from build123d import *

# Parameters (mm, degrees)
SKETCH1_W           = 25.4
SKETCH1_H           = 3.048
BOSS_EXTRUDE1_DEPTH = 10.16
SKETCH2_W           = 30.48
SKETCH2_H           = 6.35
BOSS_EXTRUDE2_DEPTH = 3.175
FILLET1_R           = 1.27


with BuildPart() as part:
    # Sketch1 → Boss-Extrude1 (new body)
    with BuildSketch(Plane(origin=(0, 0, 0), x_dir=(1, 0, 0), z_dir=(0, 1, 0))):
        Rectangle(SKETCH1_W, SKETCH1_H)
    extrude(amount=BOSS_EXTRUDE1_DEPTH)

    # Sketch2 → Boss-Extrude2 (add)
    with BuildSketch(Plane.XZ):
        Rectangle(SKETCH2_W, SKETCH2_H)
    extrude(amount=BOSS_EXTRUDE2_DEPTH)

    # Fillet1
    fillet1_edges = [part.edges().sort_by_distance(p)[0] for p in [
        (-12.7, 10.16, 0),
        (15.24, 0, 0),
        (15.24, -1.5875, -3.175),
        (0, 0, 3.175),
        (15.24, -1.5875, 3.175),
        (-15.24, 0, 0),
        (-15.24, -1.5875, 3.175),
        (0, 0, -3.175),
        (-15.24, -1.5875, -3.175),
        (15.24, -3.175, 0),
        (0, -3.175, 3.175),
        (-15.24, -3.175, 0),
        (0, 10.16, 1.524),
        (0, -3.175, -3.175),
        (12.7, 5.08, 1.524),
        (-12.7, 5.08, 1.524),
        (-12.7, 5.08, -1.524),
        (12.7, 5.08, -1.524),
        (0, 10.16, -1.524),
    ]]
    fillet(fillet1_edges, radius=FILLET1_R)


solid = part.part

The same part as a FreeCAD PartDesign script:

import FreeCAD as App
import Part
import Sketcher
Q = App.Units.Quantity


def edges_at(feature, points):
    """Names of the edges that pass closest to the given points."""
    edges = feature.Shape.Edges
    near = lambda p: min(range(len(edges)), key=lambda i: edges[i].distToShape(Part.Vertex(*p))[0])
    return sorted({f"Edge{near(p) + 1}" for p in points})

doc = App.newDocument("Part")
body = doc.addObject("PartDesign::Body", "Body")

sketch1 = doc.addObject("Sketcher::SketchObject", "Sketch")
body.addObject(sketch1)
sketch1.AttachmentSupport = (doc.XZ_Plane, [""])
sketch1.MapMode = "FlatFace"
sketch1.addGeometry(Part.LineSegment(App.Vector(-12.7, -1.5, 0), App.Vector(-12.7, 1.5, 0)), False)
sketch1.addGeometry(Part.LineSegment(App.Vector(-12.7, 1.5, 0), App.Vector(12.7, 1.5, 0)), False)
sketch1.addGeometry(Part.LineSegment(App.Vector(12.7, 1.5, 0), App.Vector(12.7, -1.5, 0)), False)
sketch1.addGeometry(Part.LineSegment(App.Vector(12.7, -1.5, 0), App.Vector(-12.7, -1.5, 0)), False)
sketch1.addConstraint(Sketcher.Constraint("Coincident", 0, 2, 1, 1))
sketch1.addConstraint(Sketcher.Constraint("Coincident", 1, 2, 2, 1))
sketch1.addConstraint(Sketcher.Constraint("Coincident", 2, 2, 3, 1))
sketch1.addConstraint(Sketcher.Constraint("Coincident", 3, 2, 0, 1))
sketch1.addConstraint(Sketcher.Constraint("Vertical", 0))
sketch1.addConstraint(Sketcher.Constraint("Horizontal", 1))
sketch1.addConstraint(Sketcher.Constraint("Vertical", 2))
sketch1.addConstraint(Sketcher.Constraint("Horizontal", 3))
sketch1.addConstraint(Sketcher.Constraint("Symmetric", 0, 2, 2, 2, -1, 1))
sketch1.addConstraint(Sketcher.Constraint("DistanceX", 1, 1, 1, 2, Q("1 in")))
sketch1.addConstraint(Sketcher.Constraint("DistanceY", 0, 1, 0, 2, Q("0.12 in")))
pad1 = doc.addObject("PartDesign::Pad", "Pad")
body.addObject(pad1)
pad1.Profile = sketch1
pad1.Length = Q("0.4 in")
pad1.Reversed = True

sketch2 = doc.addObject("Sketcher::SketchObject", "Sketch001")
body.addObject(sketch2)
sketch2.AttachmentSupport = (doc.XZ_Plane, [""])
sketch2.MapMode = "FlatFace"
sketch2.addGeometry(Part.LineSegment(App.Vector(-15, 3, 0), App.Vector(-15, -3, 0)), False)
sketch2.addGeometry(Part.LineSegment(App.Vector(-15, -3, 0), App.Vector(15, -3, 0)), False)
sketch2.addGeometry(Part.LineSegment(App.Vector(15, -3, 0), App.Vector(15, 3, 0)), False)
sketch2.addGeometry(Part.LineSegment(App.Vector(15, 3, 0), App.Vector(-15, 3, 0)), False)
sketch2.addConstraint(Sketcher.Constraint("Coincident", 0, 2, 1, 1))
sketch2.addConstraint(Sketcher.Constraint("Coincident", 1, 2, 2, 1))
sketch2.addConstraint(Sketcher.Constraint("Coincident", 2, 2, 3, 1))
sketch2.addConstraint(Sketcher.Constraint("Coincident", 3, 2, 0, 1))
sketch2.addConstraint(Sketcher.Constraint("Vertical", 0))
sketch2.addConstraint(Sketcher.Constraint("Horizontal", 1))
sketch2.addConstraint(Sketcher.Constraint("Vertical", 2))
sketch2.addConstraint(Sketcher.Constraint("Horizontal", 3))
sketch2.addConstraint(Sketcher.Constraint("Symmetric", 0, 2, 2, 2, -1, 1))
sketch2.addConstraint(Sketcher.Constraint("DistanceX", 1, 1, 1, 2, Q("1.2 in")))
sketch2.addConstraint(Sketcher.Constraint("DistanceY", 0, 2, 0, 1, Q("0.25 in")))
pad2 = doc.addObject("PartDesign::Pad", "Pad001")
body.addObject(pad2)
pad2.Profile = sketch2
pad2.Length = Q("0.125 in")
doc.recompute()

fillet = doc.addObject("PartDesign::Fillet", "Fillet")
body.addObject(fillet)
fillet.Base = (pad2, edges_at(pad2, [
    (-12.7, 10.16, 0),
    (15.24, 0, 0),
    (15.24, -1.587, -3.175),
    (0, 0, 3.175),
    (15.24, -1.587, 3.175),
    (-15.24, 0, 0),
    (-15.24, -1.587, 3.175),
    (0, 0, -3.175),
    (-15.24, -1.587, -3.175),
    (15.24, -3.175, 0),
    (0, -3.175, 3.175),
    (-15.24, -3.175, 0),
    (0, 10.16, 1.524),
    (0, -3.175, -3.175),
    (12.7, 5.08, 1.524),
    (-12.7, 5.08, 1.524),
    (-12.7, 5.08, -1.524),
    (12.7, 5.08, -1.524),
    (0, 10.16, -1.524),
]))
fillet.Radius = Q("0.05 in")

doc.recompute()
